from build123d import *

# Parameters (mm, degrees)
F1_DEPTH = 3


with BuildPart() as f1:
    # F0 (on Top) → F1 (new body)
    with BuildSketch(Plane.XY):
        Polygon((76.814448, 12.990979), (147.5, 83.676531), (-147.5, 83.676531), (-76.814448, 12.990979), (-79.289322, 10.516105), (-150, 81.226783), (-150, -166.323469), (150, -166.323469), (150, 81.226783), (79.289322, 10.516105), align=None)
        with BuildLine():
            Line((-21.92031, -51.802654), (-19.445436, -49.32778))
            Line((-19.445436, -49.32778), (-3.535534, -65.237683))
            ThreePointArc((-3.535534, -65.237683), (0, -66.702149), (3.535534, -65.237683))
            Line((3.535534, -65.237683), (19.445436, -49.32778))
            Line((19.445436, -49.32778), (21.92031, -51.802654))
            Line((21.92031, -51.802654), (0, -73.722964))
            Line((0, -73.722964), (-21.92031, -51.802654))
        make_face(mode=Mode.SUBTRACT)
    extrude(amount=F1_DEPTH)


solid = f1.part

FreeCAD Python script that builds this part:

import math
import FreeCAD as App
import Part
import Sketcher

doc = App.newDocument("Part")
body = doc.addObject("PartDesign::Body", "Body")

sketch1 = doc.addObject("Sketcher::SketchObject", "Sketch")
body.addObject(sketch1)
sketch1.AttachmentSupport = (doc.XY_Plane, [""])
sketch1.MapMode = "FlatFace"
sketch1.addGeometry([
    Part.LineSegment(App.Vector(76.8, 13, 0), App.Vector(147.5, 83.7, 0)),
    Part.LineSegment(App.Vector(147.5, 83.7, 0), App.Vector(-147.5, 83.7, 0)),
    Part.LineSegment(App.Vector(-147.5, 83.7, 0), App.Vector(-76.8, 13, 0)),
    Part.LineSegment(App.Vector(-76.8, 13, 0), App.Vector(-79.3, 10.5, 0)),
    Part.LineSegment(App.Vector(-79.3, 10.5, 0), App.Vector(-150, 81.2, 0)),
    Part.LineSegment(App.Vector(-150, 81.2, 0), App.Vector(-150, -166.3, 0)),
    Part.LineSegment(App.Vector(-150, -166.3, 0), App.Vector(150, -166.3, 0)),
    Part.LineSegment(App.Vector(150, -166.3, 0), App.Vector(150, 81.2, 0)),
    Part.LineSegment(App.Vector(150, 81.2, 0), App.Vector(79.3, 10.5, 0)),
    Part.LineSegment(App.Vector(79.3, 10.5, 0), App.Vector(76.8, 13, 0)),
    Part.LineSegment(App.Vector(0, -73.7, 0), App.Vector(-21.9, -51.8, 0)),
    Part.LineSegment(App.Vector(-21.9, -51.8, 0), App.Vector(-19.4, -49.3, 0)),
    Part.LineSegment(App.Vector(-19.4, -49.3, 0), App.Vector(-3.5, -65.2, 0)),
    Part.ArcOfCircle(Part.Circle(App.Vector(0, -61.7, 0), App.Vector(0, 0, 1), 5), math.radians(-135), math.radians(-45)),
    Part.LineSegment(App.Vector(3.5, -65.2, 0), App.Vector(19.4, -49.3, 0)),
    Part.LineSegment(App.Vector(19.4, -49.3, 0), App.Vector(21.9, -51.8, 0)),
    Part.LineSegment(App.Vector(21.9, -51.8, 0), App.Vector(0, -73.7, 0)),
], False)
sketch1.addConstraint([
    Sketcher.Constraint("Coincident", 0, 2, 1, 1),
    Sketcher.Constraint("Coincident", 1, 2, 2, 1),
    Sketcher.Constraint("Coincident", 2, 2, 3, 1),
    Sketcher.Constraint("Coincident", 3, 2, 4, 1),
    Sketcher.Constraint("Coincident", 4, 2, 5, 1),
    Sketcher.Constraint("Coincident", 5, 2, 6, 1),
    Sketcher.Constraint("Coincident", 6, 2, 7, 1),
    Sketcher.Constraint("Coincident", 7, 2, 8, 1),
    Sketcher.Constraint("Coincident", 8, 2, 9, 1),
    Sketcher.Constraint("Coincident", 9, 2, 0, 1),
    Sketcher.Constraint("Coincident", 10, 2, 11, 1),
    Sketcher.Constraint("Coincident", 11, 2, 12, 1),
    Sketcher.Constraint("Tangent", 12, 2, 13, 1),
    Sketcher.Constraint("Tangent", 13, 2, 14, 1),
    Sketcher.Constraint("Coincident", 14, 2, 15, 1),
    Sketcher.Constraint("Coincident", 15, 2, 16, 1),
    Sketcher.Constraint("Coincident", 16, 2, 10, 1),
    Sketcher.Constraint("Horizontal", 1),
    Sketcher.Constraint("Vertical", 5),
    Sketcher.Constraint("Horizontal", 6),
    Sketcher.Constraint("Vertical", 7),
    Sketcher.Constraint("Symmetric", 4, 2, 7, 2, -2),
    Sketcher.Constraint("Symmetric", 3, 2, 8, 2, -2),
    Sketcher.Constraint("Symmetric", 2, 2, 9, 2, -2),
    Sketcher.Constraint("Symmetric", 12, 2, 13, 2, -2),
    Sketcher.Constraint("Symmetric", 10, 2, 15, 2, -2),
    Sketcher.Constraint("PointOnObject", 16, 2, -2),
    Sketcher.Constraint("Perpendicular", 0, 2),
    Sketcher.Constraint("Perpendicular", 2, 3),
    Sketcher.Constraint("Perpendicular", 3, 4),
    Sketcher.Constraint("Perpendicular", 4, 8),
    Sketcher.Constraint("Parallel", 9, 10),
    Sketcher.Constraint("Perpendicular", 10, 11),
    Sketcher.Constraint("Perpendicular", 11, 12),
    Sketcher.Constraint("Perpendicular", 14, 15),
    Sketcher.Constraint("Equal", 9, 11),
    Sketcher.Constraint("Radius", 13, 5.0),
    Sketcher.Constraint("DistanceX", 1, 2, 1, 1, 295.0),
    Sketcher.Constraint("DistanceX", 6, 1, 6, 2, 300.0),
    Sketcher.Constraint("Distance", 4, 100.0),
    Sketcher.Constraint("Distance", 10, 31.0),
    Sketcher.Constraint("DistanceY", 5, 2, 1, 2, 250.0),
    Sketcher.Constraint("Distance", 3, 3.5),
    Sketcher.Constraint("DistanceY", 13, 3, -1, 1, 61.702149),
    Sketcher.Constraint("DistanceY", -1, 1, 0, 2, 83.676531),
])
pad1 = doc.addObject("PartDesign::Pad", "Pad")
body.addObject(pad1)
pad1.Profile = sketch1
pad1.Length = 3

doc.recompute()
